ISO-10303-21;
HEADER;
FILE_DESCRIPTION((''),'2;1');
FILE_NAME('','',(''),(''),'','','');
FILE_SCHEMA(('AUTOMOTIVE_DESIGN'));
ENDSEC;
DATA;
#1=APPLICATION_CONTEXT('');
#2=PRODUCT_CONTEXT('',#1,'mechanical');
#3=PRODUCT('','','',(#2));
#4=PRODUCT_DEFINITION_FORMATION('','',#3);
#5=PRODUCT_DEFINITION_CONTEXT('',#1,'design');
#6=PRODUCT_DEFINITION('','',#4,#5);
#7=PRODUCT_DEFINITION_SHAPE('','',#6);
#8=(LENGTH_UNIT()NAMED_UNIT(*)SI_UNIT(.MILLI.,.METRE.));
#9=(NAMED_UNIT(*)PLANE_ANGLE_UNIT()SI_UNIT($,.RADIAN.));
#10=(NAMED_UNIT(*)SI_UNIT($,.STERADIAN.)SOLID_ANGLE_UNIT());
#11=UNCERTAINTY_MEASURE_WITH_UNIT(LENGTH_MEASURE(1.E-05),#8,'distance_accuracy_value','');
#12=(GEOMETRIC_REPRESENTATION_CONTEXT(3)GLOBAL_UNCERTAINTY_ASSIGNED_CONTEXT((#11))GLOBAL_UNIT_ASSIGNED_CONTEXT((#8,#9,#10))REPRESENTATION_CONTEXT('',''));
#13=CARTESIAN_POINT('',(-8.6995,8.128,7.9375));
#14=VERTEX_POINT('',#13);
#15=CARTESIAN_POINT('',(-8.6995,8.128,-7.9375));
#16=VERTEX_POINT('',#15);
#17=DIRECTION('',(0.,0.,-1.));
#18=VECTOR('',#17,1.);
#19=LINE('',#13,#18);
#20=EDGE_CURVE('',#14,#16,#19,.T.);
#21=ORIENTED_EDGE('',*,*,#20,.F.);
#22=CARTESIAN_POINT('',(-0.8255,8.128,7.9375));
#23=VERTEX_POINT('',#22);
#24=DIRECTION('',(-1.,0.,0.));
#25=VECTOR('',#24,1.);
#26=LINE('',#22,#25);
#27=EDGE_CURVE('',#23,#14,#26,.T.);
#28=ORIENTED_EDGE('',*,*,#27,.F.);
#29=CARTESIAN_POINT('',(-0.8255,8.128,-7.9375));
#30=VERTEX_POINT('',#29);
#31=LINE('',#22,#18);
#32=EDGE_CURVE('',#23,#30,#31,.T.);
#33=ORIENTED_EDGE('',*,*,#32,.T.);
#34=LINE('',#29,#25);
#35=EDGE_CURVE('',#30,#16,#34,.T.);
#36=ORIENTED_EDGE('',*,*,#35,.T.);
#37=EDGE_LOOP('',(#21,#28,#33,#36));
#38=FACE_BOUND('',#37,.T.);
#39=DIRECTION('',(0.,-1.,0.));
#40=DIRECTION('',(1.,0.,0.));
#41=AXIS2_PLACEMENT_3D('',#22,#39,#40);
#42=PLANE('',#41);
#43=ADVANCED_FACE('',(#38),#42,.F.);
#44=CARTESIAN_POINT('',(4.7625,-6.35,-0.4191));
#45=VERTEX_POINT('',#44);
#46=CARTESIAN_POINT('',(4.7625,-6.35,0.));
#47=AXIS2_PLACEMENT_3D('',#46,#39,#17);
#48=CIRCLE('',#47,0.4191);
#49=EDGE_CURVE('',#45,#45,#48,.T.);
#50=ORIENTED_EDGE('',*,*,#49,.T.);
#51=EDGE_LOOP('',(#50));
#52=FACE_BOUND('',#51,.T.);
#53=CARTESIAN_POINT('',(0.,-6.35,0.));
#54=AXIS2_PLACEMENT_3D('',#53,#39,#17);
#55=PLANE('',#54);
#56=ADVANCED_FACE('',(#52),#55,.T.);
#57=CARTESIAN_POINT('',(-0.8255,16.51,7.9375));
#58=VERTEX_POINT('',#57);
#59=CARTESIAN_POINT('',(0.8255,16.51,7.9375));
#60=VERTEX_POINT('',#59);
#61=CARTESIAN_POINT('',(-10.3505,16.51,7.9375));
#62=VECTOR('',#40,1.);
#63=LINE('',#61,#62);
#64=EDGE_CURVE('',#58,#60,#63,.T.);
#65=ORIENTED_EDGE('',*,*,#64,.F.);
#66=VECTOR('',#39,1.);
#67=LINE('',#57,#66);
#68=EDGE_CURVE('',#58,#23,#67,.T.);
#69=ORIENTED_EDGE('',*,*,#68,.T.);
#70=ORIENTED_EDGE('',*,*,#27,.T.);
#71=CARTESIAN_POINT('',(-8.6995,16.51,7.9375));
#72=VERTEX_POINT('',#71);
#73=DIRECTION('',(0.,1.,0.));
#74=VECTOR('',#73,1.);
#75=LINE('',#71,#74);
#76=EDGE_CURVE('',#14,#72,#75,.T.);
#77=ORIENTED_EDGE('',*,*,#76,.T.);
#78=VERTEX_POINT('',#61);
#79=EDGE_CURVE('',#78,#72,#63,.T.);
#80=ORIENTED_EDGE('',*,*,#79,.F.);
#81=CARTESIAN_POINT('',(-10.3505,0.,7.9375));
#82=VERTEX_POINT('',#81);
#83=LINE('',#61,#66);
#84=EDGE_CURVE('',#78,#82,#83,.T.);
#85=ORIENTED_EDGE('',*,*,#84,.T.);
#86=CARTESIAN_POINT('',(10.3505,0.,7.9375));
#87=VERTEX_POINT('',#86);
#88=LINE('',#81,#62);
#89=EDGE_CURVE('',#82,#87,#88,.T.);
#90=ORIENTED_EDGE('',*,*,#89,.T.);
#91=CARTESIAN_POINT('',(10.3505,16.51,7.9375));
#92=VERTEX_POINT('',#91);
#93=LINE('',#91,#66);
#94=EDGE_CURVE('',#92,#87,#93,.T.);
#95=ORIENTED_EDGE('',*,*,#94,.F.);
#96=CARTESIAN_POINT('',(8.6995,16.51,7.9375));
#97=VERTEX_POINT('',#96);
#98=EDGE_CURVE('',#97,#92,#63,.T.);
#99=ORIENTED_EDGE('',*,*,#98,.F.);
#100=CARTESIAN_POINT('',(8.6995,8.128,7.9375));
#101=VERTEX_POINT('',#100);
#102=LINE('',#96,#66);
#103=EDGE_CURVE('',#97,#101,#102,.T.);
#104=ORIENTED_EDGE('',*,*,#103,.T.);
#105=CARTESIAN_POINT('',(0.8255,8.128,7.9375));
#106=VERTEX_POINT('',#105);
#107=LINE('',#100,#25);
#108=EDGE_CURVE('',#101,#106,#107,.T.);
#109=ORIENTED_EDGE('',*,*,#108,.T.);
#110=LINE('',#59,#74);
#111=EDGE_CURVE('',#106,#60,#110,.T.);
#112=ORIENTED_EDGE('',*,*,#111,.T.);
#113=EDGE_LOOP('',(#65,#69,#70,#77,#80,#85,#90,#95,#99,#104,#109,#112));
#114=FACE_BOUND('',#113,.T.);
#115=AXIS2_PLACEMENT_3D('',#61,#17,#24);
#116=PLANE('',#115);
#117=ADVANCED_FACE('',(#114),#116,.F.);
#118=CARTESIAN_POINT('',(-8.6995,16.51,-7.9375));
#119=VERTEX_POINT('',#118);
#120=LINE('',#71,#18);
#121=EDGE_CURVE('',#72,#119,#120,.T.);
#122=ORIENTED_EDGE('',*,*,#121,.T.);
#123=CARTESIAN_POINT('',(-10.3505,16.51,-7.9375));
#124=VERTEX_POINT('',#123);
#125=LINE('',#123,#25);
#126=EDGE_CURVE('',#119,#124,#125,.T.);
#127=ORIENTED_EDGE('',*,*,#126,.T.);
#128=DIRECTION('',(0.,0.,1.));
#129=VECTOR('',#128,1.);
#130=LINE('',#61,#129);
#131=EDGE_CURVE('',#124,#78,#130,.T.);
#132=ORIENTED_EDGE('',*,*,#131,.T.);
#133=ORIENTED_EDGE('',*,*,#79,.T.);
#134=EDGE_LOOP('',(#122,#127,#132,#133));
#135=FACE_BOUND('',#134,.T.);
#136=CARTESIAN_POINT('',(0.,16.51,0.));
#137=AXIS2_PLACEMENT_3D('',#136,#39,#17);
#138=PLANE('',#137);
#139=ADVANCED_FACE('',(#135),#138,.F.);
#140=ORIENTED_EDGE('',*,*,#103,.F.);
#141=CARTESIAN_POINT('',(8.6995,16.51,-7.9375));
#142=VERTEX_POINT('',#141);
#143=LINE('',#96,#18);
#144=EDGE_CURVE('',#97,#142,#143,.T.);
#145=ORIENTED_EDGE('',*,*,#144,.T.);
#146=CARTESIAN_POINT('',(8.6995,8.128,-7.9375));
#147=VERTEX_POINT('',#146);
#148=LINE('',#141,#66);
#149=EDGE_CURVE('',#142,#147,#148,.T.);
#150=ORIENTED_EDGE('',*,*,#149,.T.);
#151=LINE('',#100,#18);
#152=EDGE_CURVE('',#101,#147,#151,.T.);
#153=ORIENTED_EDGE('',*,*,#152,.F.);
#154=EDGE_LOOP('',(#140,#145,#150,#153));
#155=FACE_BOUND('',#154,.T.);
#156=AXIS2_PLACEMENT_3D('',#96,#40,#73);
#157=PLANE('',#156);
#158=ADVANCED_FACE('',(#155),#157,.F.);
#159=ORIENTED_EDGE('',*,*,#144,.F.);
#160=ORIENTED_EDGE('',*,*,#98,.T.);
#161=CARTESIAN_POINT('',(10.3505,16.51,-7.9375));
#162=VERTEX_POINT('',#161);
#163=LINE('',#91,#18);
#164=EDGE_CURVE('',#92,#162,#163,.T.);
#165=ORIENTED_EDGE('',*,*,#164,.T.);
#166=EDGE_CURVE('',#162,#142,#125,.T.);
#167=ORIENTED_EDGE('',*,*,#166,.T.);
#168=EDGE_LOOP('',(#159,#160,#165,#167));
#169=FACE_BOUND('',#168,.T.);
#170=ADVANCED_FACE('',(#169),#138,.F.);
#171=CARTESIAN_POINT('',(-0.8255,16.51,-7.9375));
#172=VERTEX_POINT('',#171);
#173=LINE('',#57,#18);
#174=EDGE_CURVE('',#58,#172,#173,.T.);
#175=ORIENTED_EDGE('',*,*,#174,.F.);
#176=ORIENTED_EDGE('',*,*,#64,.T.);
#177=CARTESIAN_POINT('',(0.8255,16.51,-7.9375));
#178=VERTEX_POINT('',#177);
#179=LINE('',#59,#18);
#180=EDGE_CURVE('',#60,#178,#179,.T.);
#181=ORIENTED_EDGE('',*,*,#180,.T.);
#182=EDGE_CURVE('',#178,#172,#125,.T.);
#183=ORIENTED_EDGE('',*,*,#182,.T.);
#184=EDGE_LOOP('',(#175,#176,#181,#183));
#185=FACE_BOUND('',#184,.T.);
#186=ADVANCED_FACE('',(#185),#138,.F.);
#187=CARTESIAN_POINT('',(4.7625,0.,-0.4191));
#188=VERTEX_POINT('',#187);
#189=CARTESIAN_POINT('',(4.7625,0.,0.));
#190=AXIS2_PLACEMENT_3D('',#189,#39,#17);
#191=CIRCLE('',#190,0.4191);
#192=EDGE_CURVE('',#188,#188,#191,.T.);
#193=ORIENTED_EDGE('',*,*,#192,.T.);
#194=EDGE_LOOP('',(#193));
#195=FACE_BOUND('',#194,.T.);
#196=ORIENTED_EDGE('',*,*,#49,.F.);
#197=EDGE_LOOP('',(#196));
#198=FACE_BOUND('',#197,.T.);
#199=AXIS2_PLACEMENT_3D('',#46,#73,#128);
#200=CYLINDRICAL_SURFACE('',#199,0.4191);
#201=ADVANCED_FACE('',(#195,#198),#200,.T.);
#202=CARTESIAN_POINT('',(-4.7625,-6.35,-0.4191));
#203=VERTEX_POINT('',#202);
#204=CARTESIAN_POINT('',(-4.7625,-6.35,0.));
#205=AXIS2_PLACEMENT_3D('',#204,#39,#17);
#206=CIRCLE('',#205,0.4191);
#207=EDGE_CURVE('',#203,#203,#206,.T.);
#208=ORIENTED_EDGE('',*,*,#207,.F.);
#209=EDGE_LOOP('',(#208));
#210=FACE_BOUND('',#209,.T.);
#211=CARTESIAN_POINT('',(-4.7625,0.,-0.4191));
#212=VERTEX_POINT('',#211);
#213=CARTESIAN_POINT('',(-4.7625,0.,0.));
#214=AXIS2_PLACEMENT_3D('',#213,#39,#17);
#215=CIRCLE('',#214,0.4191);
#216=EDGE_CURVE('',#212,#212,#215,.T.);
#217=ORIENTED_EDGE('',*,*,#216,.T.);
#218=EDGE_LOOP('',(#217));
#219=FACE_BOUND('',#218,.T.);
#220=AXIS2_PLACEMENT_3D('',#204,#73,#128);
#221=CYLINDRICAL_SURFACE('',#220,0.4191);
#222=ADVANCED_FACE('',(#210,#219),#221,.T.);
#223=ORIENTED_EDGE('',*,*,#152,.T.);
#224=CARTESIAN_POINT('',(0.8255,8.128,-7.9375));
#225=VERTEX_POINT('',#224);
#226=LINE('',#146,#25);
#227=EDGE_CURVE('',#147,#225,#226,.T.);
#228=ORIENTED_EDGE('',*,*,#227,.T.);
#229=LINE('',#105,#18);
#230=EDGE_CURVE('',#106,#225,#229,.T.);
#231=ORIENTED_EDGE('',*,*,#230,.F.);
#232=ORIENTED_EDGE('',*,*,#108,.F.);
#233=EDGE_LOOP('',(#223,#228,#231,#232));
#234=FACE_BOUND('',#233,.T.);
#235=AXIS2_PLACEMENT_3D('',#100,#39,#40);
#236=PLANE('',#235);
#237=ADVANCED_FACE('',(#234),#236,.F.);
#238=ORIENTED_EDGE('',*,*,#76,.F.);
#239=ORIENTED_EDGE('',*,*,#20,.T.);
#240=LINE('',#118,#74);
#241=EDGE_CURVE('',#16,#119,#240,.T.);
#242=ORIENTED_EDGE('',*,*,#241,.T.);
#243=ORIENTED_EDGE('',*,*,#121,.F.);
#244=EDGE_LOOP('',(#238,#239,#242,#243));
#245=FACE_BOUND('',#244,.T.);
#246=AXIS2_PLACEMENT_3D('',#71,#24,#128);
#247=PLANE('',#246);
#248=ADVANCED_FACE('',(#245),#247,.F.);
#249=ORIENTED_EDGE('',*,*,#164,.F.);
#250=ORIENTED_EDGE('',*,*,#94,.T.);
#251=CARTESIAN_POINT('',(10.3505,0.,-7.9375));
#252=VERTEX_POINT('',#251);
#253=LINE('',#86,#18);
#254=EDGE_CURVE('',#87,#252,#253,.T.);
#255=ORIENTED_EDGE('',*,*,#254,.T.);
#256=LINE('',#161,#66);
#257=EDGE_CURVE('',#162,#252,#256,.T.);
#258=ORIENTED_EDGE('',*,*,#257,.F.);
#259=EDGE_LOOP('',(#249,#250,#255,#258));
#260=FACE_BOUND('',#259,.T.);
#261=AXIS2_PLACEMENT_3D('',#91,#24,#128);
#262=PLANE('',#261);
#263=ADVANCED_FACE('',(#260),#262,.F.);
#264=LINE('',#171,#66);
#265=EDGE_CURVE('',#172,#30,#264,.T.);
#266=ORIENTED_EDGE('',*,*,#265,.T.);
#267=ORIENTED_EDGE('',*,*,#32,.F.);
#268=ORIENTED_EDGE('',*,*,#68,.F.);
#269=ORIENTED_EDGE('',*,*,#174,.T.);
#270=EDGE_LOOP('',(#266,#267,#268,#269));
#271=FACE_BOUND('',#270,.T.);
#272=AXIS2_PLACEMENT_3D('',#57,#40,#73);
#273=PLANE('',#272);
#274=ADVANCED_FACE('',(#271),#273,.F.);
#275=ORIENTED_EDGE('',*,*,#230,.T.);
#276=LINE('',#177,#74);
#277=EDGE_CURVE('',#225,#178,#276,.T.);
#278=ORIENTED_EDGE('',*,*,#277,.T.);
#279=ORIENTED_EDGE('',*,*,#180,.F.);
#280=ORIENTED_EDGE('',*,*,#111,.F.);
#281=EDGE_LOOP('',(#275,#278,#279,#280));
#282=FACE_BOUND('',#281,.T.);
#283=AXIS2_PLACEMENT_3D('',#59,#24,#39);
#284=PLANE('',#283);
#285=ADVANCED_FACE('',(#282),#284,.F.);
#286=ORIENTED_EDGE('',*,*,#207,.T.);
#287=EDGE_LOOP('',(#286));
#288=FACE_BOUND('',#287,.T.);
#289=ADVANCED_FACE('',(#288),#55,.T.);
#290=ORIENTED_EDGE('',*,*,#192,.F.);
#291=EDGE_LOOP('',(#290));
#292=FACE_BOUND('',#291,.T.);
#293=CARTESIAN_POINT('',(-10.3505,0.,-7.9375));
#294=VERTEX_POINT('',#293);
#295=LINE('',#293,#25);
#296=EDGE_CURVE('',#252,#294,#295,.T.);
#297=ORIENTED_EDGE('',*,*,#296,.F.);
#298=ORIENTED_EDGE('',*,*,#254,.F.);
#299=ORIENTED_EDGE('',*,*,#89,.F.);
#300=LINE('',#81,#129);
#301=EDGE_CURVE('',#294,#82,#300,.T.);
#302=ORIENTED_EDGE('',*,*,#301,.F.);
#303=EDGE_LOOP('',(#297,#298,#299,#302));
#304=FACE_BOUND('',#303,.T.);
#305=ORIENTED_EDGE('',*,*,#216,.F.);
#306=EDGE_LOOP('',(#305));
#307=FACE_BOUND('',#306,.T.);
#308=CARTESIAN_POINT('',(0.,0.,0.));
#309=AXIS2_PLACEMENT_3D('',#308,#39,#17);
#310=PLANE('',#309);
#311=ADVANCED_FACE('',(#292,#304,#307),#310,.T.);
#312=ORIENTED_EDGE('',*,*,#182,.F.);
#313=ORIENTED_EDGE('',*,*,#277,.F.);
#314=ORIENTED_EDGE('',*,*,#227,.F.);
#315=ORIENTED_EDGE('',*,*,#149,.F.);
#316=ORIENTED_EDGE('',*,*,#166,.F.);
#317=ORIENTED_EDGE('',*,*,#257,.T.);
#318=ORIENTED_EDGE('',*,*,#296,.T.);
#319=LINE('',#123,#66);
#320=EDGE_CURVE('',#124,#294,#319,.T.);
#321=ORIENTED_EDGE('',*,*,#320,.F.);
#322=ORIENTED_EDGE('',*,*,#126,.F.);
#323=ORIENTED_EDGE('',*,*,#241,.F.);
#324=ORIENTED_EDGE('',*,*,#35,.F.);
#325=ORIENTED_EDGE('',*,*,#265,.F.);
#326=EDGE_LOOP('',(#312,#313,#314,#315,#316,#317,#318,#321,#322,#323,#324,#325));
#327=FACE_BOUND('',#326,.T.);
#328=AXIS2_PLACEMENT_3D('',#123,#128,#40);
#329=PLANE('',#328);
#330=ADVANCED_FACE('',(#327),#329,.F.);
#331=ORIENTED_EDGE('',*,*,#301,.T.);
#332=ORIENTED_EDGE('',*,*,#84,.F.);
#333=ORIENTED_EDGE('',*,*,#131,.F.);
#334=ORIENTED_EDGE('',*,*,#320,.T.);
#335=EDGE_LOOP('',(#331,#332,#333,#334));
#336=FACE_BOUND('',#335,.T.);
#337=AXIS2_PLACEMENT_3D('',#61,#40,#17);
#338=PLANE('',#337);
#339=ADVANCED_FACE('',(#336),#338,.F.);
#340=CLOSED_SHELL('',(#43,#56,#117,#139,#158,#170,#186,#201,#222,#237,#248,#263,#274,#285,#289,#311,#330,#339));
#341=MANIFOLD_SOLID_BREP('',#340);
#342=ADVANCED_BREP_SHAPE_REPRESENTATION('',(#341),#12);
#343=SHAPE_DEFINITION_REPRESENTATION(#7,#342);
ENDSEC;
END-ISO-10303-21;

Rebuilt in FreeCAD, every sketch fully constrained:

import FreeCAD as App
import Part
import Sketcher
Q = App.Units.Quantity


def add_polygon(sketch, points):
    """Adds a closed chain of lines whose ends are joined by coincident constraints."""
    first, n = sketch.GeometryCount, len(points)
    for a, b in zip(points, points[1:] + points[:1]):
        sketch.addGeometry(Part.LineSegment(App.Vector(*a, 0), App.Vector(*b, 0)), False)
    for i in range(n):
        sketch.addConstraint(Sketcher.Constraint("Coincident", first + i, 2, first + (i + 1) % n, 1))

doc = App.newDocument("Part")
params = doc.addObject("Spreadsheet::Sheet", "Params")
for row, (alias, value) in enumerate([
    ("sketch1_width", "0.815 in"),
    ("sketch1_height", "0.625 in"),
    ("pad1_length", "0.65 in"),
    ("sketch2_diameter", "0.033 in"),
    ("pad2_length", "0.25 in"),
    ("sketch3_width", "0.31 in"),
    ("sketch3_height", "0.33 in"),
], start=1):
    params.set(f"A{row}", alias)
    params.set(f"B{row}", "=" + value)
    params.setAlias(f"B{row}", alias)

body = doc.addObject("PartDesign::Body", "Body")

# Sketch on XZ plane
sketch1 = body.newObject("Sketcher::SketchObject", "Sketch")
sketch1.AttachmentSupport = (doc.getObject("XZ_Plane"), [""])
sketch1.MapMode = "FlatFace"
add_polygon(sketch1, [(-10, -8), (-10, 8), (10, 8), (10, -8)])  # lines 0-3
sketch1.addConstraint([
    Sketcher.Constraint("Vertical", 0),
    Sketcher.Constraint("Horizontal", 1),
    Sketcher.Constraint("Vertical", 2),
    Sketcher.Constraint("Horizontal", 3),
    Sketcher.Constraint("Symmetric", 0, 2, 2, 2, -1, 1),
    Sketcher.Constraint("DistanceX", 1, 1, 1, 2, Q("0.815 in")),
    Sketcher.Constraint("DistanceY", 0, 1, 0, 2, Q("0.625 in")),
])
sketch1.setExpression("Constraints[9]", "Params.sketch1_width")
sketch1.setExpression("Constraints[10]", "Params.sketch1_height")
pad1 = body.newObject("PartDesign::Pad", "Pad")
pad1.Profile = sketch1
pad1.setExpression("Length", "Params.pad1_length")
pad1.Reversed = True

# Sketch on XZ plane
sketch2 = body.newObject("Sketcher::SketchObject", "Sketch001")
sketch2.AttachmentSupport = (doc.getObject("XZ_Plane"), [""])
sketch2.MapMode = "FlatFace"
sketch2.addGeometry([
    Part.Circle(App.Vector(4.76, 0, 0), App.Vector(0, 0, 1), 0.42),
    Part.Circle(App.Vector(-4.76, 0, 0), App.Vector(0, 0, 1), 0.42),
], False)
sketch2.addConstraint([
    Sketcher.Constraint("Equal", 0, 1),
    Sketcher.Constraint("Symmetric", 0, 3, 1, 3, -1, 1),
    Sketcher.Constraint("PointOnObject", 0, 3, -1),
    Sketcher.Constraint("Diameter", 0, Q("0.033 in")),
    Sketcher.Constraint("DistanceX", -1, 1, 0, 3, Q("0.1875 in")),
])
sketch2.setExpression("Constraints[3]", "Params.sketch2_diameter")
pad2 = body.newObject("PartDesign::Pad", "Pad001")
pad2.Profile = sketch2
pad2.setExpression("Length", "Params.pad2_length")

# Sketch on XY plane
sketch3 = body.newObject("Sketcher::SketchObject", "Sketch002")
sketch3.AttachmentSupport = (doc.getObject("XY_Plane"), [""])
sketch3.MapMode = "FlatFace"
sketch3.AttachmentOffset = App.Placement(App.Vector(0, 0, -0.3125 * 25.4), App.Rotation())
add_polygon(sketch3, [(9, 17), (9, 8), (1, 8), (1, 17)])  # lines 0-3
add_polygon(sketch3, [(-1, 17), (-1, 8), (-9, 8), (-9, 17)])  # lines 4-7
sketch3.addConstraint([
    Sketcher.Constraint("Vertical", 0),
    Sketcher.Constraint("Horizontal", 1),
    Sketcher.Constraint("Vertical", 2),
    Sketcher.Constraint("Horizontal", 3),
    Sketcher.Constraint("Vertical", 4),
    Sketcher.Constraint("Horizontal", 5),
    Sketcher.Constraint("Vertical", 6),
    Sketcher.Constraint("Horizontal", 7),
    Sketcher.Constraint("Symmetric", 1, 2, 4, 2, -2),
    Sketcher.Constraint("Symmetric", 3, 2, 6, 2, -2),
    Sketcher.Constraint("DistanceX", 1, 2, 1, 1, Q("0.31 in")),
    Sketcher.Constraint("DistanceY", 0, 2, 0, 1, Q("0.33 in")),
    Sketcher.Constraint("DistanceY", -1, 1, 0, 2, Q("0.32 in")),
    Sketcher.Constraint("DistanceX", 4, 2, 1, 2, Q("0.065 in")),
])
sketch3.setExpression("Constraints[18]", "Params.sketch3_width")
sketch3.setExpression("Constraints[19]", "Params.sketch3_height")
pocket1 = body.newObject("PartDesign::Pocket", "Pocket")
pocket1.Profile = sketch3
pocket1.Type = "ThroughAll"
pocket1.Reversed = True

doc.recompute()
